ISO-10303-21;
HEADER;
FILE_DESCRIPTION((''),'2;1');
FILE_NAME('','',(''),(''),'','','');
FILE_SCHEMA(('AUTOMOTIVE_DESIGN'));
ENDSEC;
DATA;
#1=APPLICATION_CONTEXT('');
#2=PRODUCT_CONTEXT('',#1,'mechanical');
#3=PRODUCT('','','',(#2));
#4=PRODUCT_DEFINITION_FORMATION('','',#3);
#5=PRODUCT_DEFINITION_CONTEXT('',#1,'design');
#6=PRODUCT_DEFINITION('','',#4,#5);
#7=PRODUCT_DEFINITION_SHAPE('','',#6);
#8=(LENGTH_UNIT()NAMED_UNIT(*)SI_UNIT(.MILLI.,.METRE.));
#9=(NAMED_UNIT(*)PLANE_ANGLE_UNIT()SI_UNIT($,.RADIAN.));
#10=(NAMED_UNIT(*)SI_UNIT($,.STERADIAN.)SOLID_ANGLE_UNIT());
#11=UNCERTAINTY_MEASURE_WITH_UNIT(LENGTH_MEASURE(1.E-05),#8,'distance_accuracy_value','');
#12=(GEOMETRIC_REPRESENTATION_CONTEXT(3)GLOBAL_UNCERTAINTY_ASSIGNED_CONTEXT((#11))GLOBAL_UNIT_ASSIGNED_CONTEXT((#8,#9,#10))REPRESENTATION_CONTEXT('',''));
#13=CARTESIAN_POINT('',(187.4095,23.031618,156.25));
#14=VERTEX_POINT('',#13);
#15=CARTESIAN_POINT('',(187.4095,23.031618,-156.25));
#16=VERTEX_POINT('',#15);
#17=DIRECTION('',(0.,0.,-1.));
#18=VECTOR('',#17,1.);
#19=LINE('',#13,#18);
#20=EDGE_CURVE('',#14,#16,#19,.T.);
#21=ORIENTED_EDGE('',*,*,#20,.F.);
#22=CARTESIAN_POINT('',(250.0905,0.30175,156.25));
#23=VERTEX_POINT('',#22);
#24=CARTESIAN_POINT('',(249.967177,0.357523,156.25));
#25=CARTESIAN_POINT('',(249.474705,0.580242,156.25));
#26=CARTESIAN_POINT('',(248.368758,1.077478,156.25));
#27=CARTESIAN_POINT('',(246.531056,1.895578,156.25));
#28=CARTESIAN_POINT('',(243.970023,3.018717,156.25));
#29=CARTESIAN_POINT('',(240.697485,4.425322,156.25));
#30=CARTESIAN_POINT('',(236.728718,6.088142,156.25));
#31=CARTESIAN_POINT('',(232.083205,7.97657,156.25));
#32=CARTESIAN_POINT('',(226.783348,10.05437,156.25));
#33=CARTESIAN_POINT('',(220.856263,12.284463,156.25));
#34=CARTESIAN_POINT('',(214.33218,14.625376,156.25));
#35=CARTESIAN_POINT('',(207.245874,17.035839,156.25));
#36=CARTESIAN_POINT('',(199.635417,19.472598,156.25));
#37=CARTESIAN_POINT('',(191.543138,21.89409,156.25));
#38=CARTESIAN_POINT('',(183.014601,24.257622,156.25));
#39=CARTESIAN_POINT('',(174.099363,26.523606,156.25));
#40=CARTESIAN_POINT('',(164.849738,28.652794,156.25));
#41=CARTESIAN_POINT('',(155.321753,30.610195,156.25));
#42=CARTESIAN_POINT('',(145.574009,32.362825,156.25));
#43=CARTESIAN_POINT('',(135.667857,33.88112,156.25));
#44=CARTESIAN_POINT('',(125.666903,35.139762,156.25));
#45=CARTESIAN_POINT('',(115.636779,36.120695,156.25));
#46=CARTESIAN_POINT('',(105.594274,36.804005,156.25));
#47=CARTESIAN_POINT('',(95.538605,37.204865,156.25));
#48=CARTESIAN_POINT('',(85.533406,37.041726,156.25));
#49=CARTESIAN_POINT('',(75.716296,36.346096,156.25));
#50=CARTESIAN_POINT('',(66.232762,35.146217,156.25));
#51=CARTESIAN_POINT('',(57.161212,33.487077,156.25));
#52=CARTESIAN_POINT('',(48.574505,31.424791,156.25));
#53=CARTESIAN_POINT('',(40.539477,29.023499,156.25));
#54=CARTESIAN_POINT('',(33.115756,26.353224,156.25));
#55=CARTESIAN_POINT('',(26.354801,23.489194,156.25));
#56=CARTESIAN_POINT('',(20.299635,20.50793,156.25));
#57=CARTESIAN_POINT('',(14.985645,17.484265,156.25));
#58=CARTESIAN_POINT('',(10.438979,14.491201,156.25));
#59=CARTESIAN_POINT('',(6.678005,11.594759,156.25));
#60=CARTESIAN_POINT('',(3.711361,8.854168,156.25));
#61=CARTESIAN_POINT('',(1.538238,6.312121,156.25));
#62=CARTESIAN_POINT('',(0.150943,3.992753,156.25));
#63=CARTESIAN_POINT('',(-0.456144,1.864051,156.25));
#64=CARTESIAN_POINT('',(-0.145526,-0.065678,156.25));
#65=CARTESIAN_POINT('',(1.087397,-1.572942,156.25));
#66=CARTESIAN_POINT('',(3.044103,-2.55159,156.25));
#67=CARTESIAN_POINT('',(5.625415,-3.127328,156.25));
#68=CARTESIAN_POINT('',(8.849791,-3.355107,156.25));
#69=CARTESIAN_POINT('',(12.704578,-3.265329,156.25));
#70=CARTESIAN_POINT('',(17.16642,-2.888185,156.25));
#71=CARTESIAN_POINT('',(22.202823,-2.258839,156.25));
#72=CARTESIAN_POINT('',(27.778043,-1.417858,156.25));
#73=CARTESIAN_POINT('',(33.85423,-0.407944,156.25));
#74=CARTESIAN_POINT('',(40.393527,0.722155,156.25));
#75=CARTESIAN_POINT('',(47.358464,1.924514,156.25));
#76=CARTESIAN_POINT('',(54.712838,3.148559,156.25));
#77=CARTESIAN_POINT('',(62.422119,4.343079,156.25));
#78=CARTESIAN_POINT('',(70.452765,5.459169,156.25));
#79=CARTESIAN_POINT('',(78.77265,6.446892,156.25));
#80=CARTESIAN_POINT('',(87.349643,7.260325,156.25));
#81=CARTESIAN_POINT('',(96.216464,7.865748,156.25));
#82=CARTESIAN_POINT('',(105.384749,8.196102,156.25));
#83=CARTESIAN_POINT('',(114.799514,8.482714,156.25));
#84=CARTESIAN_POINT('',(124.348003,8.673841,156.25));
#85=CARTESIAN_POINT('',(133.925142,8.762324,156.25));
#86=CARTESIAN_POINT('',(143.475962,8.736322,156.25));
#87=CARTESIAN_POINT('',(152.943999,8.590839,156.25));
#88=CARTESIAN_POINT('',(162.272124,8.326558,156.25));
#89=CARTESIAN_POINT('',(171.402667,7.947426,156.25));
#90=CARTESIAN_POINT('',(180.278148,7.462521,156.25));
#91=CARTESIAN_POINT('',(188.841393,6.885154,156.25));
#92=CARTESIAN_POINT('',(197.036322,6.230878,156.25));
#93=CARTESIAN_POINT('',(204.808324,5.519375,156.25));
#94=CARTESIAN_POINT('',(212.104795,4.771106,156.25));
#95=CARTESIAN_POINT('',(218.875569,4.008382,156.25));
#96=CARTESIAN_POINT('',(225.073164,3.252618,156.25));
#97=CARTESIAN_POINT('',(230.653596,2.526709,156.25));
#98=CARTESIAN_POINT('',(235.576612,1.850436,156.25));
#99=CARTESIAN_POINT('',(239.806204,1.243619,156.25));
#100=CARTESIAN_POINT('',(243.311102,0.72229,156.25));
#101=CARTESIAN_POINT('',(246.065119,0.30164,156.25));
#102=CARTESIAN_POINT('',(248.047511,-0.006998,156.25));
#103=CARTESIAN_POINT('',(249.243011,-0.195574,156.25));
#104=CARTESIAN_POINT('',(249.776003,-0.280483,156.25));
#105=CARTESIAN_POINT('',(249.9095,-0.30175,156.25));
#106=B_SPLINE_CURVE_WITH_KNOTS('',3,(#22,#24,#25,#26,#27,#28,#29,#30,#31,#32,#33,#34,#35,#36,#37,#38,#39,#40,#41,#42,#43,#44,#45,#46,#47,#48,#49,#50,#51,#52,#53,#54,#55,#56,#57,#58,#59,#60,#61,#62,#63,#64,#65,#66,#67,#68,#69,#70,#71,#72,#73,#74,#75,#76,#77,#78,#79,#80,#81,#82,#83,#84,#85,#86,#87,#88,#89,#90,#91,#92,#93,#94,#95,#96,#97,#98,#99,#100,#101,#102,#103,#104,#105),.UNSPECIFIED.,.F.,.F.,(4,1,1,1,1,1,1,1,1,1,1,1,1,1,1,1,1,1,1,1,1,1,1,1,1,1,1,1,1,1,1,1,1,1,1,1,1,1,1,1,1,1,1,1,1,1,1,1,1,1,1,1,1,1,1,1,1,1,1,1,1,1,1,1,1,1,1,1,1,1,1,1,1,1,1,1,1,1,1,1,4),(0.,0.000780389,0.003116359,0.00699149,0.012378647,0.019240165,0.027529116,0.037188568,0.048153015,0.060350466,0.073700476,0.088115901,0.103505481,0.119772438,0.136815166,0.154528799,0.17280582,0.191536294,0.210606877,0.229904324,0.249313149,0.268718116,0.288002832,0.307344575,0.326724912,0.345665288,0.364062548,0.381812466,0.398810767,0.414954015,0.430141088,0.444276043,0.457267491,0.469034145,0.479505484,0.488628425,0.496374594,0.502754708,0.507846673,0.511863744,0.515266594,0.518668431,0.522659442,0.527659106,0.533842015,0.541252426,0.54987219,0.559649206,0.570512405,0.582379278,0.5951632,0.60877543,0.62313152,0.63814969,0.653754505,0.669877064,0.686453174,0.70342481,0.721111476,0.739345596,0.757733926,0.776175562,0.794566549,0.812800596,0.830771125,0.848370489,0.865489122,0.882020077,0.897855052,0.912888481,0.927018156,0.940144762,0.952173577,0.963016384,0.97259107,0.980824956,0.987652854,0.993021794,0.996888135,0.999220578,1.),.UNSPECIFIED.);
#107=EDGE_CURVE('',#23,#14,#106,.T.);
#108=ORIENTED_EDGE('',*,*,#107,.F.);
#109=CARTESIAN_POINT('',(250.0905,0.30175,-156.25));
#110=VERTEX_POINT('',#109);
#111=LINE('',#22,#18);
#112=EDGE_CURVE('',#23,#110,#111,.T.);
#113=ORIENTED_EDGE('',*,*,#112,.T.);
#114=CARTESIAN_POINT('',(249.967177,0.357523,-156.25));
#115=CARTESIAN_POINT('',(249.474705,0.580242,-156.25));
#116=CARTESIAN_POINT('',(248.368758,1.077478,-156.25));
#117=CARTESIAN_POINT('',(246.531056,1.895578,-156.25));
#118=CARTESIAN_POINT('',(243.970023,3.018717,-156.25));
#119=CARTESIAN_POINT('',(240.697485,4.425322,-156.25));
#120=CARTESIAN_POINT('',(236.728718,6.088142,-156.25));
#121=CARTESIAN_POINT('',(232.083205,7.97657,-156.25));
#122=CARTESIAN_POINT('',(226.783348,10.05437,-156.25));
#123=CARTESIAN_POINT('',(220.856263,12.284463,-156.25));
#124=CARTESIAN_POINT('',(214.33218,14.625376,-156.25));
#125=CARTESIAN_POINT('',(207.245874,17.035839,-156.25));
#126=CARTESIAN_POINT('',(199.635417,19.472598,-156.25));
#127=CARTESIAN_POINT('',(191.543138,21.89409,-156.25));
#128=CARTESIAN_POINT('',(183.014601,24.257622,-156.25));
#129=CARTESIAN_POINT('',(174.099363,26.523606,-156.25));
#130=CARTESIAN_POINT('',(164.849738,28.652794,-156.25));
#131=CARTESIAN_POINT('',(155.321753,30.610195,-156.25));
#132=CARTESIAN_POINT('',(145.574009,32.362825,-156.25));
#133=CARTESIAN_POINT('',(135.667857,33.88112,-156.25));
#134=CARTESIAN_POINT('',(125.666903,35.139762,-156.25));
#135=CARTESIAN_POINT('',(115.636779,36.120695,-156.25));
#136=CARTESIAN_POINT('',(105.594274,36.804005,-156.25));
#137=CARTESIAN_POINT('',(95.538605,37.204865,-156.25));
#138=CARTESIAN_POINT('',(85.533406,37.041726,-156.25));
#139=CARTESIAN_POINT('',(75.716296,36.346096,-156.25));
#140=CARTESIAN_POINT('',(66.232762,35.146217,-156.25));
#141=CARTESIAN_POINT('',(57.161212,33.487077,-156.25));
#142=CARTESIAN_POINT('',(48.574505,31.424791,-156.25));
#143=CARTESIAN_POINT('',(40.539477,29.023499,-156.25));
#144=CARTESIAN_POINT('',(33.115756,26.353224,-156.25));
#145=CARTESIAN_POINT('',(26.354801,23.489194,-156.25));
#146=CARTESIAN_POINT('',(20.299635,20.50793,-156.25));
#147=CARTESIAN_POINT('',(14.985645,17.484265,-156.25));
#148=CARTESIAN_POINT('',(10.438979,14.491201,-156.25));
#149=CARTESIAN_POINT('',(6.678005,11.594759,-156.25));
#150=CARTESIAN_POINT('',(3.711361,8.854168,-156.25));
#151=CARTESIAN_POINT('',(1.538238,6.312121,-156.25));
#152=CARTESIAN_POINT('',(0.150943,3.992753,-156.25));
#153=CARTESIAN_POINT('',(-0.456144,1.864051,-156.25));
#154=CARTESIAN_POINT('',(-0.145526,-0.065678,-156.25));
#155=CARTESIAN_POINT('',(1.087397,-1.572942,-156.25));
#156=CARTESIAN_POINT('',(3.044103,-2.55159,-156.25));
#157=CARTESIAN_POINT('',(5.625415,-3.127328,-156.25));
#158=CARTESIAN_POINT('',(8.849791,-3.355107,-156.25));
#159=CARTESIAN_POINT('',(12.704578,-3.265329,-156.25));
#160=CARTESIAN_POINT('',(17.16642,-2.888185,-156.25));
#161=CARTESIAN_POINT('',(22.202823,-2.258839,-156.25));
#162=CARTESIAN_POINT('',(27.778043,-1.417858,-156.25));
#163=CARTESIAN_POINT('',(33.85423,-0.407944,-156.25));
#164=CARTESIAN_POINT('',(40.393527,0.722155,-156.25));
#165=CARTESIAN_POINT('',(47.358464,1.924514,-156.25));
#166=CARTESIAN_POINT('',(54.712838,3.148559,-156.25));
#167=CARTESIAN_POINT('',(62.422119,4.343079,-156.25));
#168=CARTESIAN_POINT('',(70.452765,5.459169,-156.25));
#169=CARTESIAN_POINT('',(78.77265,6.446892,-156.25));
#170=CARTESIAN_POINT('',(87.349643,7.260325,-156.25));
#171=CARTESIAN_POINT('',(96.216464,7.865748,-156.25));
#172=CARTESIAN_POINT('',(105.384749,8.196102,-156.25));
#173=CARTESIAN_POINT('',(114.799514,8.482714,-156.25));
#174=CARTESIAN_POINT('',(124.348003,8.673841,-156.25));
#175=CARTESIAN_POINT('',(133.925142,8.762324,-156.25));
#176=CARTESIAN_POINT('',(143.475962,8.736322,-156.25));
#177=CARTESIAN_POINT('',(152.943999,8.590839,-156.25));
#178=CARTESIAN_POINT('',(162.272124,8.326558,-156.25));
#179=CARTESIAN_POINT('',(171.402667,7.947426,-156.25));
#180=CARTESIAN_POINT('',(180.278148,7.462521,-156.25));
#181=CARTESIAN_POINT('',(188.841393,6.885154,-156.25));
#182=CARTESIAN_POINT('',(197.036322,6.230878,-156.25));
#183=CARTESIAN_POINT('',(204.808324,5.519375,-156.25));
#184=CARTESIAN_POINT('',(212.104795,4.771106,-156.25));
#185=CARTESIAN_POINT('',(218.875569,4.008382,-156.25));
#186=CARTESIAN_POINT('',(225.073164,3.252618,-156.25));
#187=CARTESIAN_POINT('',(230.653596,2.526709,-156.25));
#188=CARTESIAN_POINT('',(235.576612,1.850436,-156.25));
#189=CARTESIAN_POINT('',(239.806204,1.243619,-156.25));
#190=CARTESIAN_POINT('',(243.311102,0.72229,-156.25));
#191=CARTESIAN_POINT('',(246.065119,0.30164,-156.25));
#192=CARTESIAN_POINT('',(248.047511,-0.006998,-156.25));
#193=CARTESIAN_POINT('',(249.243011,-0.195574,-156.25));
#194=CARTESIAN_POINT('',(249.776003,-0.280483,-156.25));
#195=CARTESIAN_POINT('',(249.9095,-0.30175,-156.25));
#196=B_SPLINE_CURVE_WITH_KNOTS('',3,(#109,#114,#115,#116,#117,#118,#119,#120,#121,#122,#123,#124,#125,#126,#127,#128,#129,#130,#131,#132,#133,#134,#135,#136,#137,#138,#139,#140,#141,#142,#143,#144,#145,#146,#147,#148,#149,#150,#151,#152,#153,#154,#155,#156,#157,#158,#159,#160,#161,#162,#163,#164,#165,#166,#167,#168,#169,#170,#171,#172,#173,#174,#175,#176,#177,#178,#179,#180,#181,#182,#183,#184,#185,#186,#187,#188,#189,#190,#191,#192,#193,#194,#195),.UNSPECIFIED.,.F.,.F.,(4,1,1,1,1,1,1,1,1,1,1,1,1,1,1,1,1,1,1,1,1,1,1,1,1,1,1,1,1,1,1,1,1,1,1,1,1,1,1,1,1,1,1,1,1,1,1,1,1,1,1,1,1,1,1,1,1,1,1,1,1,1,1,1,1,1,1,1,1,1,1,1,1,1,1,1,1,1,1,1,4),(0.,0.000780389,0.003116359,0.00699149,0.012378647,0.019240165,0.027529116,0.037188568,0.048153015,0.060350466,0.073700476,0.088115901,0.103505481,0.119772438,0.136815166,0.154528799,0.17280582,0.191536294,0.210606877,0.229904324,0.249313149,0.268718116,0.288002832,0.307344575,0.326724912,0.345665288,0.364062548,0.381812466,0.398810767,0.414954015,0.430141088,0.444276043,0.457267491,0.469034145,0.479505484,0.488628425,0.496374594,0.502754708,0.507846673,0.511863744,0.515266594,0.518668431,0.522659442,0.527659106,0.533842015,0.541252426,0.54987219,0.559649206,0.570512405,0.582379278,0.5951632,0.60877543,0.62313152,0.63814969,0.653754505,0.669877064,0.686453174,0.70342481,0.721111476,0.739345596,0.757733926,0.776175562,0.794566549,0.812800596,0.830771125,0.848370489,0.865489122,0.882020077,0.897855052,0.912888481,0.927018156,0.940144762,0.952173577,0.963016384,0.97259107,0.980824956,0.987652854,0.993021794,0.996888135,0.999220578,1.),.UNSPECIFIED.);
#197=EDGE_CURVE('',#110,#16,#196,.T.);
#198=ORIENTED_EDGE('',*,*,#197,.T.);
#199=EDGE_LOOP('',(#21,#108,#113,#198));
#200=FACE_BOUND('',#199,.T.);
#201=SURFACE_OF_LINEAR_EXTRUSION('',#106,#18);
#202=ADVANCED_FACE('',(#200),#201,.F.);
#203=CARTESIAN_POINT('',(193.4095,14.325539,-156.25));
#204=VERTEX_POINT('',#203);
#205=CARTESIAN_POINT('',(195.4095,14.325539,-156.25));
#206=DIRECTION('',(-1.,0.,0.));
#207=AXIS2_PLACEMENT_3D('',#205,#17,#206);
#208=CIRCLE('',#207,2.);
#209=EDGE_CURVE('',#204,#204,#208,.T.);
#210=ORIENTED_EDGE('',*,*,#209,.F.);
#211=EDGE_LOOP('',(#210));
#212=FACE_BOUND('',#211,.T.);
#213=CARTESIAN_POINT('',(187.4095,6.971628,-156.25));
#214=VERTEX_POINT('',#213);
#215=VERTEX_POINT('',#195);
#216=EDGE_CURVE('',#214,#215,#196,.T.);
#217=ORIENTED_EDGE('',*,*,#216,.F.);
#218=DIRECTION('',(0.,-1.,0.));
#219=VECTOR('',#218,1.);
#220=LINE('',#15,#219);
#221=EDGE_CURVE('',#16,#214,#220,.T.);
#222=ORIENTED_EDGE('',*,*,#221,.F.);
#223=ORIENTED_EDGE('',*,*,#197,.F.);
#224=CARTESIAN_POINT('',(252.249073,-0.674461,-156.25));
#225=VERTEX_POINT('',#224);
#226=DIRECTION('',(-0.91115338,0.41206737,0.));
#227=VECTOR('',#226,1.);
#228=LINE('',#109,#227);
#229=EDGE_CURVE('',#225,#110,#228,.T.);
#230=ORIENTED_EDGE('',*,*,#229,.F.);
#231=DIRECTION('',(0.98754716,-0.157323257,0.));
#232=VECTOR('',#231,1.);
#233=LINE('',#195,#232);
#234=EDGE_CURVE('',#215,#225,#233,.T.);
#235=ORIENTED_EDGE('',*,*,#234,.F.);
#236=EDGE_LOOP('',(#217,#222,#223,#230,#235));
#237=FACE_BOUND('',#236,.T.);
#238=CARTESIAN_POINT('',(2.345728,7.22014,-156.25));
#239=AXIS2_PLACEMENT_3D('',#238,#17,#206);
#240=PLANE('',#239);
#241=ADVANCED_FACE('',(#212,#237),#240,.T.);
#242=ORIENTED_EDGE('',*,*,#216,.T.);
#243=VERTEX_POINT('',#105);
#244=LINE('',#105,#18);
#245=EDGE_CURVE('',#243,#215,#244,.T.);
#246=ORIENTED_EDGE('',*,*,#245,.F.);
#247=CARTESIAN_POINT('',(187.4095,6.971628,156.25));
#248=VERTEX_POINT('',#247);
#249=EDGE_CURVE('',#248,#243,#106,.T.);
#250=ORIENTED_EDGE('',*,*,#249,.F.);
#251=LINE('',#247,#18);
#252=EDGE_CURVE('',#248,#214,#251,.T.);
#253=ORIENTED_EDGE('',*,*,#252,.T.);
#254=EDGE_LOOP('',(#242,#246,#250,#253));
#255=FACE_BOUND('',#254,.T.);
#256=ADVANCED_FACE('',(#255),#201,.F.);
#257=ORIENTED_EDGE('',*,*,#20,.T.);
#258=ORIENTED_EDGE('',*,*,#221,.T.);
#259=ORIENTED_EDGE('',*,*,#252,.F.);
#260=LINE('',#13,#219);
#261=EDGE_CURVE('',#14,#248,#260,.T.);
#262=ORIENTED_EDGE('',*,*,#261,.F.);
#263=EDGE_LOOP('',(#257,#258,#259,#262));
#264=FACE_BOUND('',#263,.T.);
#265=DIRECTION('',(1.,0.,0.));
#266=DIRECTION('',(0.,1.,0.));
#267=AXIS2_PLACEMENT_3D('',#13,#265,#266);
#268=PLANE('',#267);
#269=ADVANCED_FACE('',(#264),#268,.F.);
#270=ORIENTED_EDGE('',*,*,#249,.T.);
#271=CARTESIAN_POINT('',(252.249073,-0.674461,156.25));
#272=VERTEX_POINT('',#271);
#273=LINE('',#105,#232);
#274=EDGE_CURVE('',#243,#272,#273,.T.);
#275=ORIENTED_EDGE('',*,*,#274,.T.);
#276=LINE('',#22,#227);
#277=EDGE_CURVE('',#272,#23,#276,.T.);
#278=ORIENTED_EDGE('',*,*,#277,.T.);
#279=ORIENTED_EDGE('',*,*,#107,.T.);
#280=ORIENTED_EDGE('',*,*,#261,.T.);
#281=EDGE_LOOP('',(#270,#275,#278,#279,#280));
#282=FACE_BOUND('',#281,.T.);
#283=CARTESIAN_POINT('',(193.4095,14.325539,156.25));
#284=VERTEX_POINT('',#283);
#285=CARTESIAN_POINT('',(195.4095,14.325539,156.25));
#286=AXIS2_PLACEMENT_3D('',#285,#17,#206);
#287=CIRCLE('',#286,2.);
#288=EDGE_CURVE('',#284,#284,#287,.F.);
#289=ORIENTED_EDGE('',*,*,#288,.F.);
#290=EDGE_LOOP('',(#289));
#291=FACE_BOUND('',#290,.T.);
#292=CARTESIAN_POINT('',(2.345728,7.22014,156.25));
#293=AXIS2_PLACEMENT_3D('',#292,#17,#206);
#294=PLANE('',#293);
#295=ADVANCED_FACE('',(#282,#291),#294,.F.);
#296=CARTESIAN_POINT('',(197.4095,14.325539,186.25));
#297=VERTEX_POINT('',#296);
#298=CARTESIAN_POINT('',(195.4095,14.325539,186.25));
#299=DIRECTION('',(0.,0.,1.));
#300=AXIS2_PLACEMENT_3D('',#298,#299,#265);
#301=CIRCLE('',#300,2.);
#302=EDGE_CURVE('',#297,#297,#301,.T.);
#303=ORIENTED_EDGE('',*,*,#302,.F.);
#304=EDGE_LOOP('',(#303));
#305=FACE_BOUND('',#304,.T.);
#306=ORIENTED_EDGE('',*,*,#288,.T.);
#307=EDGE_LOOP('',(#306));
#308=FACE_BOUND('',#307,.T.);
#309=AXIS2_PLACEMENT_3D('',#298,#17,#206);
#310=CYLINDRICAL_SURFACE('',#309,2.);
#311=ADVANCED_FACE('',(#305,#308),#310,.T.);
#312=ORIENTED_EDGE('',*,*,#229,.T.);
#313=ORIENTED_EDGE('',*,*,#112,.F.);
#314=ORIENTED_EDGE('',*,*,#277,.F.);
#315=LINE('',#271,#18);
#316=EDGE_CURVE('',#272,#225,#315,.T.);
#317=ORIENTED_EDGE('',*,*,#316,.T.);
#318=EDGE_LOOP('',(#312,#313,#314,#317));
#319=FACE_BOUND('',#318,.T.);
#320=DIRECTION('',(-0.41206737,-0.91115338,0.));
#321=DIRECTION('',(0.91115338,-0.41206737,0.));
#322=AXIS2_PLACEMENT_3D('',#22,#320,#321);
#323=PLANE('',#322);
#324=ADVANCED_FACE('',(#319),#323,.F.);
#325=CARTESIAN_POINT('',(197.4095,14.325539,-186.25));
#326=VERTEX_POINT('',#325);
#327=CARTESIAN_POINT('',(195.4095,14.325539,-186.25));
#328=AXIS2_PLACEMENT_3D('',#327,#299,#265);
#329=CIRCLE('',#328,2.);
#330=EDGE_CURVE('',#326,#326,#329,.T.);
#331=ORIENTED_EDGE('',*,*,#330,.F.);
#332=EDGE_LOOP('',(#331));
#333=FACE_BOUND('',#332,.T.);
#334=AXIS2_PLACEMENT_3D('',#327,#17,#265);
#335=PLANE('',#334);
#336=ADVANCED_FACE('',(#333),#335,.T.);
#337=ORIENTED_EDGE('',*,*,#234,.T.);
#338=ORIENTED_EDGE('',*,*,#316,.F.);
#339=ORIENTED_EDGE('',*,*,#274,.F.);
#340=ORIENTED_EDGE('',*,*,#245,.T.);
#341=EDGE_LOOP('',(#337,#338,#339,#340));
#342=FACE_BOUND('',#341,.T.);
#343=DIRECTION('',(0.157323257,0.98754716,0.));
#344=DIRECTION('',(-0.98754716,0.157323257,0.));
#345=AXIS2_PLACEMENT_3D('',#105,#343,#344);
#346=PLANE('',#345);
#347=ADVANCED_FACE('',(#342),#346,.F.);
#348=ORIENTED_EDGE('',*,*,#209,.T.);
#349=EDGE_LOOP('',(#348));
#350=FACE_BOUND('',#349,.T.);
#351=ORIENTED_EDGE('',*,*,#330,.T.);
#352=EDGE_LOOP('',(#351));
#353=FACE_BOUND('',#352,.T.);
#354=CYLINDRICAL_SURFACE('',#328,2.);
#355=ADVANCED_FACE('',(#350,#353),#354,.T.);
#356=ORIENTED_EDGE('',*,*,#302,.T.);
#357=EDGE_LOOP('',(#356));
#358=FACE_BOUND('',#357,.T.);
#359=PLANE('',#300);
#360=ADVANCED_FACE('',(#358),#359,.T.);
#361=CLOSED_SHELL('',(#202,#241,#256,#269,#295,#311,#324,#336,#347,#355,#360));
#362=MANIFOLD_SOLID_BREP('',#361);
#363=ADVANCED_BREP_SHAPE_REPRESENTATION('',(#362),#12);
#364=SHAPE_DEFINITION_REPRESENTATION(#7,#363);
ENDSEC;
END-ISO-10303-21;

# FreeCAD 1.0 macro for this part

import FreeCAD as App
import Part
import Sketcher
from FreeCAD import Vector
Q = App.Units.Quantity

doc = App.newDocument("Part")
params = doc.addObject("Spreadsheet::Sheet", "Params")
for row, (alias, value) in enumerate([
    ("pad1_length", "312.5 mm"),
    ("sketch2_diameter", "4 mm"),
    ("pad2_length", "30 mm"),
], start=1):
    params.set(f"A{row}", alias)
    params.set(f"B{row}", "=" + value)
    params.setAlias(f"B{row}", alias)

body = doc.addObject("PartDesign::Body", "Body")

sketch1 = body.newObject("Sketcher::SketchObject", "Sketch")
sketch1.AttachmentSupport = (doc.getObject("XY_Plane"), [""])
sketch1.MapMode = "FlatFace"
sketch1.addGeometry([
    Part.LineSegment(Vector(252.249073, -0.674461, 0), Vector(250.0905, 0.30175, 0)),
    Part.BSplineCurve([Vector(250.0905, 0.30175, 0), Vector(249.967177, 0.357523, 0), Vector(249.474705, 0.580242, 0), Vector(248.368758, 1.077478, 0), Vector(246.531056, 1.895578, 0), Vector(243.970023, 3.018717, 0), Vector(240.697485, 4.425322, 0), Vector(236.728718, 6.088142, 0), Vector(232.083205, 7.97657, 0), Vector(226.783348, 10.05437, 0), Vector(220.856263, 12.284463, 0), Vector(214.33218, 14.625376, 0), Vector(207.245874, 17.035839, 0), Vector(199.635417, 19.472598, 0), Vector(192.963027, 21.46921, 0), Vector(188.829831, 22.637984, 0), Vector(187.4095, 23.031618, 0)], [4, 1, 1, 1, 1, 1, 1, 1, 1, 1, 1, 1, 1, 1, 4], [0, 0.000780389, 0.003116359, 0.00699149, 0.012378647, 0.019240165, 0.027529116, 0.037188568, 0.048153015, 0.060350466, 0.073700476, 0.088115901, 0.103505481, 0.119772438, 0.128270281], False, 3, [1, 1, 1, 1, 1, 1, 1, 1, 1, 1, 1, 1, 1, 1, 1, 1, 1], False),
    Part.LineSegment(Vector(187.4095, 23.031618, 0), Vector(187.4095, 6.971628, 0)),
    Part.BSplineCurve([Vector(187.4095, 6.971628, 0), Vector(187.926543, 6.934674, 0), Vector(191.182722, 6.698224, 0), Vector(197.036322, 6.230878, 0), Vector(204.808324, 5.519375, 0), Vector(212.104795, 4.771106, 0), Vector(218.875569, 4.008382, 0), Vector(225.073164, 3.252618, 0), Vector(230.653596, 2.526709, 0), Vector(235.576612, 1.850436, 0), Vector(239.806204, 1.243619, 0), Vector(243.311102, 0.72229, 0), Vector(246.065119, 0.30164, 0), Vector(248.047511, -0.006998, 0), Vector(249.243011, -0.195574, 0), Vector(249.776003, -0.280483, 0), Vector(249.9095, -0.30175, 0)], [4, 1, 1, 1, 1, 1, 1, 1, 1, 1, 1, 1, 1, 1, 4], [0.879031338, 0.882020077, 0.897855052, 0.912888481, 0.927018156, 0.940144762, 0.952173577, 0.963016384, 0.97259107, 0.980824956, 0.987652854, 0.993021794, 0.996888135, 0.999220578, 1], False, 3, [1, 1, 1, 1, 1, 1, 1, 1, 1, 1, 1, 1, 1, 1, 1, 1, 1], False),
    Part.LineSegment(Vector(249.9095, -0.30175, 0), Vector(252.249073, -0.674461, 0)),
], False)
sketch1.addConstraint([
    Sketcher.Constraint("Block", 1),
    Sketcher.Constraint("Block", 3),
    Sketcher.Constraint("Coincident", 0, 2, 1, 1),
    Sketcher.Constraint("Coincident", 1, 2, 2, 1),
    Sketcher.Constraint("Coincident", 2, 2, 3, 1),
    Sketcher.Constraint("Coincident", 3, 2, 4, 1),
    Sketcher.Constraint("Coincident", 4, 2, 0, 1),
    Sketcher.Constraint("DistanceY", 4, 2, -1, 1, Q("0.674461 mm")),
    Sketcher.Constraint("Distance", 0, Q("2.369056 mm")),
])
pad1 = body.newObject("PartDesign::Pad", "Pad")
pad1.Profile = sketch1
pad1.setExpression("Length", "Params.pad1_length")
pad1.Midplane = True

sketch2 = body.newObject("Sketcher::SketchObject", "Sketch001")
sketch2.AttachmentSupport = (doc.getObject("XY_Plane"), [""])
sketch2.MapMode = "FlatFace"
sketch2.AttachmentOffset = App.Placement(Vector(0, 0, 156.25), App.Rotation())
sketch2.addGeometry(Part.Circle(Vector(195.4, 14.3, 0), Vector(0, 0, 1), 2), False)
sketch2.addConstraint([
    Sketcher.Constraint("Diameter", 0, Q("4 mm")),
    Sketcher.Constraint("DistanceX", -1, 1, 0, 3, Q("195.4095 mm")),
    Sketcher.Constraint("DistanceY", -1, 1, 0, 3, Q("14.325539 mm")),
])
sketch2.setExpression("Constraints[0]", "Params.sketch2_diameter")
pad2 = body.newObject("PartDesign::Pad", "Pad001")
pad2.Profile = sketch2
pad2.setExpression("Length", "Params.pad2_length")
doc.recompute()

mirrored = body.newObject("PartDesign::Mirrored", "Mirrored")
mirrored.Originals = [pad2]
mirrored.MirrorPlane = (doc.getObject("XY_Plane"), [""])
body.Tip = mirrored

doc.recompute()
